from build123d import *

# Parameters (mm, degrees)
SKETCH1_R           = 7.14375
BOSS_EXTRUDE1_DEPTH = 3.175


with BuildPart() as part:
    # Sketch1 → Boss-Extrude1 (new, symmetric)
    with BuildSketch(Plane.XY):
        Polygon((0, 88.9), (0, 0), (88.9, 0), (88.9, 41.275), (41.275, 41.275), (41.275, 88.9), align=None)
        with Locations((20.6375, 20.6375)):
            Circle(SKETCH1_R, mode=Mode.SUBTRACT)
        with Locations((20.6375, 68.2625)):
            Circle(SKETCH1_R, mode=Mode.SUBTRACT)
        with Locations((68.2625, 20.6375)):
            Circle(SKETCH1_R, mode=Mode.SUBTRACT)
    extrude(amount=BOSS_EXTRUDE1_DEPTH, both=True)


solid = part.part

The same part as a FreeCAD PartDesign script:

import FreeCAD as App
import Part
import Sketcher
from FreeCAD import Vector
Q = App.Units.Quantity


def add_polygon(sketch, points):
    """Adds a closed chain of lines whose ends are joined by coincident constraints."""
    first, n = sketch.GeometryCount, len(points)
    for a, b in zip(points, points[1:] + points[:1]):
        sketch.addGeometry(Part.LineSegment(App.Vector(*a, 0), App.Vector(*b, 0)), False)
    for i in range(n):
        sketch.addConstraint(Sketcher.Constraint("Coincident", first + i, 2, first + (i + 1) % n, 1))

doc = App.newDocument("Part")
params = doc.addObject("Spreadsheet::Sheet", "Params")
for row, (alias, value) in enumerate([
    ("sketch1_diameter", "0.5625 in"),
    ("sketch1_width", "3.5 in"),
    ("sketch1_width2", "1.875 in"),
    ("pad1_length", "0.25 in"),
], start=1):
    params.set(f"A{row}", alias)
    params.set(f"B{row}", "=" + value)
    params.setAlias(f"B{row}", alias)

body = doc.addObject("PartDesign::Body", "Body")

sketch1 = doc.addObject("Sketcher::SketchObject", "Sketch")
body.addObject(sketch1)
sketch1.AttachmentSupport = (doc.XY_Plane, [""])
sketch1.MapMode = "FlatFace"
add_polygon(sketch1, [(0, 89), (0, 0), (89, 0), (89, 41), (41, 41), (41, 89)])
sketch1.addGeometry(Part.Circle(Vector(21, 21, 0), Vector(0, 0, 1), 7), False)
sketch1.addGeometry(Part.Circle(Vector(68, 21, 0), Vector(0, 0, 1), 7), False)
sketch1.addGeometry(Part.Circle(Vector(21, 68, 0), Vector(0, 0, 1), 7), False)
sketch1.addConstraint(Sketcher.Constraint("Vertical", 0))
sketch1.addConstraint(Sketcher.Constraint("Horizontal", 1))
sketch1.addConstraint(Sketcher.Constraint("Vertical", 2))
sketch1.addConstraint(Sketcher.Constraint("Horizontal", 3))
sketch1.addConstraint(Sketcher.Constraint("Vertical", 4))
sketch1.addConstraint(Sketcher.Constraint("Horizontal", 5))
sketch1.addConstraint(Sketcher.Constraint("Coincident", 0, 2, -1, 1))
sketch1.addConstraint(Sketcher.Constraint("Equal", 6, 7))
sketch1.addConstraint(Sketcher.Constraint("Equal", 7, 8))
sketch1.addConstraint(Sketcher.Constraint("Horizontal", 6, 3, 7, 3))
sketch1.addConstraint(Sketcher.Constraint("Vertical", 6, 3, 8, 3))
sketch1.addConstraint(Sketcher.Constraint("Equal", 1, 0))
sketch1.addConstraint(Sketcher.Constraint("Equal", 5, 2))
sketch1.addConstraint(Sketcher.Constraint("Diameter", 6, Q("0.5625 in")))
sketch1.addConstraint(Sketcher.Constraint("DistanceX", 1, 1, 1, 2, Q("3.5 in")))
sketch1.addConstraint(Sketcher.Constraint("DistanceX", 3, 2, 3, 1, Q("1.875 in")))
sketch1.addConstraint(Sketcher.Constraint("DistanceX", -1, 1, 6, 3, Q("0.8125 in")))
sketch1.addConstraint(Sketcher.Constraint("DistanceY", -1, 1, 6, 3, Q("0.8125 in")))
sketch1.addConstraint(Sketcher.Constraint("DistanceX", -1, 1, 7, 3, Q("2.6875 in")))
sketch1.addConstraint(Sketcher.Constraint("DistanceY", -1, 1, 8, 3, Q("2.6875 in")))
sketch1.setExpression("Constraints[19]", "Params.sketch1_diameter")
sketch1.setExpression("Constraints[20]", "Params.sketch1_width")
sketch1.setExpression("Constraints[21]", "Params.sketch1_width2")
pad1 = doc.addObject("PartDesign::Pad", "Pad")
body.addObject(pad1)
pad1.Profile = sketch1
pad1.setExpression("Length", "Params.pad1_length")
pad1.Midplane = True

doc.recompute()
